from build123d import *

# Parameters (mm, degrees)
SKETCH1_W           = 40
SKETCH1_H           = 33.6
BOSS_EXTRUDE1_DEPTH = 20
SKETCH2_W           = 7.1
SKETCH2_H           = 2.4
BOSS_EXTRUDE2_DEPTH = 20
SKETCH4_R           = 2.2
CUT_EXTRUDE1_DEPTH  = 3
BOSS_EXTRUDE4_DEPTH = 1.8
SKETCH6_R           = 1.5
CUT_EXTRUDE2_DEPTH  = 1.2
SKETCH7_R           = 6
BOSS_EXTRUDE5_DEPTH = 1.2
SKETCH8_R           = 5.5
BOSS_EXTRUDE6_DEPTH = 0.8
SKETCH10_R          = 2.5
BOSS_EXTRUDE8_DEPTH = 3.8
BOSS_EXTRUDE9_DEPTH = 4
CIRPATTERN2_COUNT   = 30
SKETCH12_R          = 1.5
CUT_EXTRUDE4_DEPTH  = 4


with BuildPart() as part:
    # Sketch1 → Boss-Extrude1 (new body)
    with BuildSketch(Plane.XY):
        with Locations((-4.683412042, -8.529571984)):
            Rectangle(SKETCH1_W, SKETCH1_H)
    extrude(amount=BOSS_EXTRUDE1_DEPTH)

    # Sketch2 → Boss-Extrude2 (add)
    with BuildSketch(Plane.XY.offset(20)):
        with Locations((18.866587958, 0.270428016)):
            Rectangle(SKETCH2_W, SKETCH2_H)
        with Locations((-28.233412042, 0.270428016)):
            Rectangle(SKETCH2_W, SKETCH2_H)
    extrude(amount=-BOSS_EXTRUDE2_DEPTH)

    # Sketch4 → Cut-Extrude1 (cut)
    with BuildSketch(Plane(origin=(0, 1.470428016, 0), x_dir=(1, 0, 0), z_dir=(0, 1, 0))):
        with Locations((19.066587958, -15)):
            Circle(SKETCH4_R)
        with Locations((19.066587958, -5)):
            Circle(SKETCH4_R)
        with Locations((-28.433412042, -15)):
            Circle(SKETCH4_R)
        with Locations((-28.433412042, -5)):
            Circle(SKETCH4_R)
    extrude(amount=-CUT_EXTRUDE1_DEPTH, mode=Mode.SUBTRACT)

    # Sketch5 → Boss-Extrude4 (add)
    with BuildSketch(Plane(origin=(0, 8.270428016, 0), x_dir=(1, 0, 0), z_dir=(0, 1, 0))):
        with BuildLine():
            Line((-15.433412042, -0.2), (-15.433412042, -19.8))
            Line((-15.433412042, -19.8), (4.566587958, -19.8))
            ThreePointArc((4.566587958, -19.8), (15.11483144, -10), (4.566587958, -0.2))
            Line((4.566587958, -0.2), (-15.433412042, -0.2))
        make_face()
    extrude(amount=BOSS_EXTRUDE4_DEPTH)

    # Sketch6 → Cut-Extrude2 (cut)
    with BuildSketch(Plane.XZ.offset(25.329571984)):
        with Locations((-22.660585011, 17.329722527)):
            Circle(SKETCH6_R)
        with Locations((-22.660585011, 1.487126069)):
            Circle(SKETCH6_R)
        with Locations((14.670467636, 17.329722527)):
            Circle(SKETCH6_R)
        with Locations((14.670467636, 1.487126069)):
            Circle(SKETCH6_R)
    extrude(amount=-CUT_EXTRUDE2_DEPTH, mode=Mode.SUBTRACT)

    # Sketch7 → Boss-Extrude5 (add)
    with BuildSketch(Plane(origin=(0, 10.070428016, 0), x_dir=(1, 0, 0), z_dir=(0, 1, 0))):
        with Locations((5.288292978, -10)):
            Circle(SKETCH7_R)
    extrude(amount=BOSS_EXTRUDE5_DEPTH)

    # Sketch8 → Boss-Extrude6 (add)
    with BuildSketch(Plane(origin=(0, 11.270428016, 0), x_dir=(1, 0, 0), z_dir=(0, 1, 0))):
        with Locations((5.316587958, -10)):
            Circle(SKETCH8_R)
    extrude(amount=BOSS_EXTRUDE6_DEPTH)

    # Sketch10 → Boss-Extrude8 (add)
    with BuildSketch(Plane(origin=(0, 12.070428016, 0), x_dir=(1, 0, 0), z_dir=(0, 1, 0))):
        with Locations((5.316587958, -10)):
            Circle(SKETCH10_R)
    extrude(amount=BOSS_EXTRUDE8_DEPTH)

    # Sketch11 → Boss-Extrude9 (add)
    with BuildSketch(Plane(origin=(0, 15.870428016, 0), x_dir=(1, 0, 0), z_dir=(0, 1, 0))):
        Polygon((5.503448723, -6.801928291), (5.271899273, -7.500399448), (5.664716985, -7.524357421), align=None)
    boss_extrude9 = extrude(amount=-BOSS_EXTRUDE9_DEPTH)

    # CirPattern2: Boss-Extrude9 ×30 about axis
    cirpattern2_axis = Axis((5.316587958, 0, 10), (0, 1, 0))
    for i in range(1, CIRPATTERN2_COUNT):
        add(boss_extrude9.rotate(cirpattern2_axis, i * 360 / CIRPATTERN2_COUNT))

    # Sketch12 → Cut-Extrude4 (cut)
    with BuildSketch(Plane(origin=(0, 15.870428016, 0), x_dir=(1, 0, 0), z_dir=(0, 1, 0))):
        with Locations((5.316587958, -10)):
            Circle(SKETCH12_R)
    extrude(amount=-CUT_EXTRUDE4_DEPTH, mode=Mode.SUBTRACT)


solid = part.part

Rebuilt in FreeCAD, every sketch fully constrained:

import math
import FreeCAD as App
import Part
import Sketcher

doc = App.newDocument("Part")
body = doc.addObject("PartDesign::Body", "Body")

# Sketch on XY plane
sketch1 = body.newObject("Sketcher::SketchObject", "Sketch")
sketch1.AttachmentSupport = (doc.getObject("XY_Plane"), [""])
sketch1.MapMode = "FlatFace"
sketch1.addGeometry(Part.LineSegment(App.Vector(-25, 8, 0), App.Vector(-25, -25, 0)), False)
sketch1.addGeometry(Part.LineSegment(App.Vector(-25, -25, 0), App.Vector(15, -25, 0)), False)
sketch1.addGeometry(Part.LineSegment(App.Vector(15, -25, 0), App.Vector(15, 8, 0)), False)
sketch1.addGeometry(Part.LineSegment(App.Vector(15, 8, 0), App.Vector(-25, 8, 0)), False)
sketch1.addConstraint(Sketcher.Constraint("Coincident", 0, 2, 1, 1))
sketch1.addConstraint(Sketcher.Constraint("Coincident", 1, 2, 2, 1))
sketch1.addConstraint(Sketcher.Constraint("Coincident", 2, 2, 3, 1))
sketch1.addConstraint(Sketcher.Constraint("Coincident", 3, 2, 0, 1))
sketch1.addConstraint(Sketcher.Constraint("Vertical", 0))
sketch1.addConstraint(Sketcher.Constraint("Horizontal", 1))
sketch1.addConstraint(Sketcher.Constraint("Vertical", 2))
sketch1.addConstraint(Sketcher.Constraint("Horizontal", 3))
sketch1.addConstraint(Sketcher.Constraint("DistanceX", 1, 1, 1, 2, 40.0))
sketch1.addConstraint(Sketcher.Constraint("DistanceY", 0, 2, 0, 1, 33.6))
sketch1.addConstraint(Sketcher.Constraint("DistanceY", 0, 2, -1, 1, 25.329572))
sketch1.addConstraint(Sketcher.Constraint("DistanceX", 0, 2, -1, 1, 24.683412))
pad1 = body.newObject("PartDesign::Pad", "Pad")
pad1.Profile = sketch1
pad1.Length = 20

# Sketch on XY plane
sketch2 = body.newObject("Sketcher::SketchObject", "Sketch001")
sketch2.AttachmentSupport = (doc.getObject("XY_Plane"), [""])
sketch2.MapMode = "FlatFace"
sketch2.AttachmentOffset = App.Placement(App.Vector(0, 0, 20), App.Rotation())
sketch2.addGeometry(Part.LineSegment(App.Vector(15.3, 1.5, 0), App.Vector(15.3, -0.9, 0)), False)
sketch2.addGeometry(Part.LineSegment(App.Vector(15.3, -0.9, 0), App.Vector(22.4, -0.9, 0)), False)
sketch2.addGeometry(Part.LineSegment(App.Vector(22.4, -0.9, 0), App.Vector(22.4, 1.5, 0)), False)
sketch2.addGeometry(Part.LineSegment(App.Vector(22.4, 1.5, 0), App.Vector(15.3, 1.5, 0)), False)
sketch2.addGeometry(Part.LineSegment(App.Vector(-31.8, 1.5, 0), App.Vector(-31.8, -0.9, 0)), False)
sketch2.addGeometry(Part.LineSegment(App.Vector(-31.8, -0.9, 0), App.Vector(-24.7, -0.9, 0)), False)
sketch2.addGeometry(Part.LineSegment(App.Vector(-24.7, -0.9, 0), App.Vector(-24.7, 1.5, 0)), False)
sketch2.addGeometry(Part.LineSegment(App.Vector(-24.7, 1.5, 0), App.Vector(-31.8, 1.5, 0)), False)
sketch2.addConstraint(Sketcher.Constraint("Coincident", 0, 2, 1, 1))
sketch2.addConstraint(Sketcher.Constraint("Coincident", 1, 2, 2, 1))
sketch2.addConstraint(Sketcher.Constraint("Coincident", 2, 2, 3, 1))
sketch2.addConstraint(Sketcher.Constraint("Coincident", 3, 2, 0, 1))
sketch2.addConstraint(Sketcher.Constraint("Coincident", 4, 2, 5, 1))
sketch2.addConstraint(Sketcher.Constraint("Coincident", 5, 2, 6, 1))
sketch2.addConstraint(Sketcher.Constraint("Coincident", 6, 2, 7, 1))
sketch2.addConstraint(Sketcher.Constraint("Coincident", 7, 2, 4, 1))
sketch2.addConstraint(Sketcher.Constraint("Vertical", 0))
sketch2.addConstraint(Sketcher.Constraint("Horizontal", 1))
sketch2.addConstraint(Sketcher.Constraint("Vertical", 2))
sketch2.addConstraint(Sketcher.Constraint("Horizontal", 3))
sketch2.addConstraint(Sketcher.Constraint("Vertical", 4))
sketch2.addConstraint(Sketcher.Constraint("Horizontal", 5))
sketch2.addConstraint(Sketcher.Constraint("Vertical", 6))
sketch2.addConstraint(Sketcher.Constraint("Horizontal", 7))
sketch2.addConstraint(Sketcher.Constraint("Horizontal", 1, 2, 4, 2))
sketch2.addConstraint(Sketcher.Constraint("Horizontal", 3, 2, 6, 2))
sketch2.addConstraint(Sketcher.Constraint("Equal", 3, 5))
sketch2.addConstraint(Sketcher.Constraint("DistanceX", 1, 1, 1, 2, 7.1))
sketch2.addConstraint(Sketcher.Constraint("DistanceY", 0, 2, 0, 1, 2.4))
sketch2.addConstraint(Sketcher.Constraint("DistanceX", 5, 2, 0, 2, 40.0))
sketch2.addConstraint(Sketcher.Constraint("DistanceY", 0, 2, -1, 1, 0.929572))
sketch2.addConstraint(Sketcher.Constraint("DistanceX", -1, 1, 0, 2, 15.316588))
pad2 = body.newObject("PartDesign::Pad", "Pad001")
pad2.Profile = sketch2
pad2.Length = 20
pad2.Reversed = True

# Sketch on XZ plane
sketch3 = body.newObject("Sketcher::SketchObject", "Sketch002")
sketch3.AttachmentSupport = (doc.getObject("XZ_Plane"), [""])
sketch3.MapMode = "FlatFace"
sketch3.AttachmentOffset = App.Placement(App.Vector(0, 0, -1.470428), App.Rotation())
sketch3.addGeometry(Part.Circle(App.Vector(19.1, 15, 0), App.Vector(0, 0, 1), 2.2), False)
sketch3.addGeometry(Part.Circle(App.Vector(19.1, 5, 0), App.Vector(0, 0, 1), 2.2), False)
sketch3.addGeometry(Part.Circle(App.Vector(-28.4, 15, 0), App.Vector(0, 0, 1), 2.2), False)
sketch3.addGeometry(Part.Circle(App.Vector(-28.4, 5, 0), App.Vector(0, 0, 1), 2.2), False)
sketch3.addConstraint(Sketcher.Constraint("Equal", 0, 1))
sketch3.addConstraint(Sketcher.Constraint("Equal", 1, 2))
sketch3.addConstraint(Sketcher.Constraint("Equal", 2, 3))
sketch3.addConstraint(Sketcher.Constraint("Horizontal", 0, 3, 2, 3))
sketch3.addConstraint(Sketcher.Constraint("Horizontal", 1, 3, 3, 3))
sketch3.addConstraint(Sketcher.Constraint("Vertical", 0, 3, 1, 3))
sketch3.addConstraint(Sketcher.Constraint("Vertical", 2, 3, 3, 3))
sketch3.addConstraint(Sketcher.Constraint("Diameter", 0, 4.4))
sketch3.addConstraint(Sketcher.Constraint("DistanceY", -1, 1, 0, 3, 15.0))
sketch3.addConstraint(Sketcher.Constraint("DistanceY", -1, 1, 1, 3, 5.0))
sketch3.addConstraint(Sketcher.Constraint("DistanceX", 2, 3, 0, 3, 47.5))
sketch3.addConstraint(Sketcher.Constraint("DistanceX", -1, 1, 0, 3, 19.066588))
pocket1 = body.newObject("PartDesign::Pocket", "Pocket")
pocket1.Profile = sketch3
pocket1.Length = 3
pocket1.Reversed = True

# Sketch on XZ plane
sketch4 = body.newObject("Sketcher::SketchObject", "Sketch003")
sketch4.AttachmentSupport = (doc.getObject("XZ_Plane"), [""])
sketch4.MapMode = "FlatFace"
sketch4.AttachmentOffset = App.Placement(App.Vector(0, 0, -8.270428), App.Rotation())
sketch4.addGeometry(Part.LineSegment(App.Vector(-15, 0, 0), App.Vector(-15, 20, 0)), False)
sketch4.addGeometry(Part.LineSegment(App.Vector(-15, 20, 0), App.Vector(5, 20, 0)), False)
sketch4.addGeometry(Part.ArcOfCircle(Part.Circle(App.Vector(5, 10, 0), App.Vector(0, 0, 1), 10), math.radians(-94), math.radians(94)), False)
sketch4.addGeometry(Part.LineSegment(App.Vector(5, 0, 0), App.Vector(-15, 0, 0)), False)
sketch4.addConstraint(Sketcher.Constraint("Coincident", 0, 2, 1, 1))
sketch4.addConstraint(Sketcher.Constraint("Coincident", 1, 2, 2, 2))
sketch4.addConstraint(Sketcher.Constraint("Coincident", 2, 1, 3, 1))
sketch4.addConstraint(Sketcher.Constraint("Coincident", 3, 2, 0, 1))
sketch4.addConstraint(Sketcher.Constraint("Vertical", 0))
sketch4.addConstraint(Sketcher.Constraint("Horizontal", 1))
sketch4.addConstraint(Sketcher.Constraint("Horizontal", 3))
sketch4.addConstraint(Sketcher.Constraint("Vertical", 1, 2, 2, 1))
sketch4.addConstraint(Sketcher.Constraint("DistanceX", 1, 1, 1, 2, 20.0))
sketch4.addConstraint(Sketcher.Constraint("DistanceY", 0, 1, 0, 2, 19.6))
sketch4.addConstraint(Sketcher.Constraint("DistanceY", -1, 1, 2, 3, 10.0))
sketch4.addConstraint(Sketcher.Constraint("Radius", 2, 9.826538))
sketch4.addConstraint(Sketcher.Constraint("DistanceX", -1, 1, 2, 3, 5.288293))
pad3 = body.newObject("PartDesign::Pad", "Pad002")
pad3.Profile = sketch4
pad3.Length = 1.8
pad3.Reversed = True

# Sketch on XZ plane
sketch5 = body.newObject("Sketcher::SketchObject", "Sketch004")
sketch5.AttachmentSupport = (doc.getObject("XZ_Plane"), [""])
sketch5.MapMode = "FlatFace"
sketch5.AttachmentOffset = App.Placement(App.Vector(0, 0, 25.329572), App.Rotation())
sketch5.addGeometry(Part.Circle(App.Vector(-22.7, 17.3, 0), App.Vector(0, 0, 1), 1.5), False)
sketch5.addGeometry(Part.Circle(App.Vector(-22.7, 1.5, 0), App.Vector(0, 0, 1), 1.5), False)
sketch5.addGeometry(Part.Circle(App.Vector(14.7, 17.3, 0), App.Vector(0, 0, 1), 1.5), False)
sketch5.addGeometry(Part.Circle(App.Vector(14.7, 1.5, 0), App.Vector(0, 0, 1), 1.5), False)
sketch5.addConstraint(Sketcher.Constraint("Equal", 0, 1))
sketch5.addConstraint(Sketcher.Constraint("Equal", 1, 2))
sketch5.addConstraint(Sketcher.Constraint("Equal", 2, 3))
sketch5.addConstraint(Sketcher.Constraint("Horizontal", 0, 3, 2, 3))
sketch5.addConstraint(Sketcher.Constraint("Horizontal", 1, 3, 3, 3))
sketch5.addConstraint(Sketcher.Constraint("Vertical", 0, 3, 1, 3))
sketch5.addConstraint(Sketcher.Constraint("Vertical", 2, 3, 3, 3))
sketch5.addConstraint(Sketcher.Constraint("Diameter", 0, 3.0))
sketch5.addConstraint(Sketcher.Constraint("DistanceX", 0, 3, -1, 1, 22.660585))
sketch5.addConstraint(Sketcher.Constraint("DistanceY", -1, 1, 0, 3, 17.329723))
sketch5.addConstraint(Sketcher.Constraint("DistanceY", -1, 1, 1, 3, 1.487126))
sketch5.addConstraint(Sketcher.Constraint("DistanceX", -1, 1, 2, 3, 14.670468))
pocket2 = body.newObject("PartDesign::Pocket", "Pocket001")
pocket2.Profile = sketch5
pocket2.Length = 1.2

# Sketch on XZ plane
sketch6 = body.newObject("Sketcher::SketchObject", "Sketch005")
sketch6.AttachmentSupport = (doc.getObject("XZ_Plane"), [""])
sketch6.MapMode = "FlatFace"
sketch6.AttachmentOffset = App.Placement(App.Vector(0, 0, -10.070428), App.Rotation())
sketch6.addGeometry(Part.Circle(App.Vector(5, 10, 0), App.Vector(0, 0, 1), 6), False)
sketch6.addConstraint(Sketcher.Constraint("Diameter", 0, 12.0))
sketch6.addConstraint(Sketcher.Constraint("DistanceY", -1, 1, 0, 3, 10.0))
sketch6.addConstraint(Sketcher.Constraint("DistanceX", -1, 1, 0, 3, 5.288293))
pad4 = body.newObject("PartDesign::Pad", "Pad003")
pad4.Profile = sketch6
pad4.Length = 1.2
pad4.Reversed = True

# Sketch on XZ plane
sketch7 = body.newObject("Sketcher::SketchObject", "Sketch006")
sketch7.AttachmentSupport = (doc.getObject("XZ_Plane"), [""])
sketch7.MapMode = "FlatFace"
sketch7.AttachmentOffset = App.Placement(App.Vector(0, 0, -11.270428), App.Rotation())
sketch7.addGeometry(Part.Circle(App.Vector(5, 10, 0), App.Vector(0, 0, 1), 6), False)
sketch7.addConstraint(Sketcher.Constraint("Diameter", 0, 11.0))
sketch7.addConstraint(Sketcher.Constraint("DistanceY", -1, 1, 0, 3, 10.0))
sketch7.addConstraint(Sketcher.Constraint("DistanceX", -1, 1, 0, 3, 5.316588))
pad5 = body.newObject("PartDesign::Pad", "Pad004")
pad5.Profile = sketch7
pad5.Length = 0.8
pad5.Reversed = True

# Sketch on XZ plane
sketch8 = body.newObject("Sketcher::SketchObject", "Sketch007")
sketch8.AttachmentSupport = (doc.getObject("XZ_Plane"), [""])
sketch8.MapMode = "FlatFace"
sketch8.AttachmentOffset = App.Placement(App.Vector(0, 0, -12.070428), App.Rotation())
sketch8.addGeometry(Part.Circle(App.Vector(5.3, 10, 0), App.Vector(0, 0, 1), 2.5), False)
sketch8.addConstraint(Sketcher.Constraint("Diameter", 0, 5.0))
sketch8.addConstraint(Sketcher.Constraint("DistanceY", -1, 1, 0, 3, 10.0))
sketch8.addConstraint(Sketcher.Constraint("DistanceX", -1, 1, 0, 3, 5.316588))
pad6 = body.newObject("PartDesign::Pad", "Pad005")
pad6.Profile = sketch8
pad6.Length = 3.8
pad6.Reversed = True

# Sketch on XZ plane
sketch9 = body.newObject("Sketcher::SketchObject", "Sketch008")
sketch9.AttachmentSupport = (doc.getObject("XZ_Plane"), [""])
sketch9.MapMode = "FlatFace"
sketch9.AttachmentOffset = App.Placement(App.Vector(0, 0, -15.870428), App.Rotation())
sketch9.addGeometry(Part.LineSegment(App.Vector(5.5, 6.8, 0), App.Vector(5.27, 7.5, 0)), False)
sketch9.addGeometry(Part.LineSegment(App.Vector(5.27, 7.5, 0), App.Vector(5.66, 7.52, 0)), False)
sketch9.addGeometry(Part.LineSegment(App.Vector(5.66, 7.52, 0), App.Vector(5.5, 6.8, 0)), False)
sketch9.addConstraint(Sketcher.Constraint("Coincident", 0, 2, 1, 1))
sketch9.addConstraint(Sketcher.Constraint("Coincident", 1, 2, 2, 1))
sketch9.addConstraint(Sketcher.Constraint("Coincident", 2, 2, 0, 1))
sketch9.addConstraint(Sketcher.Constraint("DistanceX", -1, 1, 0, 2, 5.271899))
sketch9.addConstraint(Sketcher.Constraint("DistanceY", -1, 1, 0, 2, 7.500399))
sketch9.addConstraint(Sketcher.Constraint("Distance", 0, 0.735851))
sketch9.addConstraint(Sketcher.Constraint("Distance", 2, 0.74021))
sketch9.addConstraint(Sketcher.Constraint("DistanceX", -1, 1, 2, 2, 5.503449))
sketch9.addConstraint(Sketcher.Constraint("DistanceX", 2, 2, 1, 2, 0.161268))
pad7 = body.newObject("PartDesign::Pad", "Pad006")
pad7.Profile = sketch9
pad7.Length = 4
doc.recompute()

datumline = body.newObject("PartDesign::Line", "DatumLine")
datumline.Placement = App.Placement(App.Vector(5.316588, 0, 10), App.Rotation(App.Vector(0, 0, 1), App.Vector(0, 1, 0)))
polarpattern = body.newObject("PartDesign::PolarPattern", "PolarPattern")
polarpattern.Originals = [pad7]
polarpattern.Axis = (datumline, [""])
polarpattern.Angle = 360
polarpattern.Occurrences = 30
body.Tip = polarpattern

# Sketch on XZ plane
sketch10 = body.newObject("Sketcher::SketchObject", "Sketch009")
sketch10.AttachmentSupport = (doc.getObject("XZ_Plane"), [""])
sketch10.MapMode = "FlatFace"
sketch10.AttachmentOffset = App.Placement(App.Vector(0, 0, -15.870428), App.Rotation())
sketch10.addGeometry(Part.Circle(App.Vector(5.3, 10, 0), App.Vector(0, 0, 1), 1.5), False)
sketch10.addConstraint(Sketcher.Constraint("Diameter", 0, 3.0))
sketch10.addConstraint(Sketcher.Constraint("DistanceY", -1, 1, 0, 3, 10.0))
sketch10.addConstraint(Sketcher.Constraint("DistanceX", -1, 1, 0, 3, 5.316588))
pocket3 = body.newObject("PartDesign::Pocket", "Pocket002")
pocket3.Profile = sketch10
pocket3.Length = 4
pocket3.Reversed = True

doc.recompute()
